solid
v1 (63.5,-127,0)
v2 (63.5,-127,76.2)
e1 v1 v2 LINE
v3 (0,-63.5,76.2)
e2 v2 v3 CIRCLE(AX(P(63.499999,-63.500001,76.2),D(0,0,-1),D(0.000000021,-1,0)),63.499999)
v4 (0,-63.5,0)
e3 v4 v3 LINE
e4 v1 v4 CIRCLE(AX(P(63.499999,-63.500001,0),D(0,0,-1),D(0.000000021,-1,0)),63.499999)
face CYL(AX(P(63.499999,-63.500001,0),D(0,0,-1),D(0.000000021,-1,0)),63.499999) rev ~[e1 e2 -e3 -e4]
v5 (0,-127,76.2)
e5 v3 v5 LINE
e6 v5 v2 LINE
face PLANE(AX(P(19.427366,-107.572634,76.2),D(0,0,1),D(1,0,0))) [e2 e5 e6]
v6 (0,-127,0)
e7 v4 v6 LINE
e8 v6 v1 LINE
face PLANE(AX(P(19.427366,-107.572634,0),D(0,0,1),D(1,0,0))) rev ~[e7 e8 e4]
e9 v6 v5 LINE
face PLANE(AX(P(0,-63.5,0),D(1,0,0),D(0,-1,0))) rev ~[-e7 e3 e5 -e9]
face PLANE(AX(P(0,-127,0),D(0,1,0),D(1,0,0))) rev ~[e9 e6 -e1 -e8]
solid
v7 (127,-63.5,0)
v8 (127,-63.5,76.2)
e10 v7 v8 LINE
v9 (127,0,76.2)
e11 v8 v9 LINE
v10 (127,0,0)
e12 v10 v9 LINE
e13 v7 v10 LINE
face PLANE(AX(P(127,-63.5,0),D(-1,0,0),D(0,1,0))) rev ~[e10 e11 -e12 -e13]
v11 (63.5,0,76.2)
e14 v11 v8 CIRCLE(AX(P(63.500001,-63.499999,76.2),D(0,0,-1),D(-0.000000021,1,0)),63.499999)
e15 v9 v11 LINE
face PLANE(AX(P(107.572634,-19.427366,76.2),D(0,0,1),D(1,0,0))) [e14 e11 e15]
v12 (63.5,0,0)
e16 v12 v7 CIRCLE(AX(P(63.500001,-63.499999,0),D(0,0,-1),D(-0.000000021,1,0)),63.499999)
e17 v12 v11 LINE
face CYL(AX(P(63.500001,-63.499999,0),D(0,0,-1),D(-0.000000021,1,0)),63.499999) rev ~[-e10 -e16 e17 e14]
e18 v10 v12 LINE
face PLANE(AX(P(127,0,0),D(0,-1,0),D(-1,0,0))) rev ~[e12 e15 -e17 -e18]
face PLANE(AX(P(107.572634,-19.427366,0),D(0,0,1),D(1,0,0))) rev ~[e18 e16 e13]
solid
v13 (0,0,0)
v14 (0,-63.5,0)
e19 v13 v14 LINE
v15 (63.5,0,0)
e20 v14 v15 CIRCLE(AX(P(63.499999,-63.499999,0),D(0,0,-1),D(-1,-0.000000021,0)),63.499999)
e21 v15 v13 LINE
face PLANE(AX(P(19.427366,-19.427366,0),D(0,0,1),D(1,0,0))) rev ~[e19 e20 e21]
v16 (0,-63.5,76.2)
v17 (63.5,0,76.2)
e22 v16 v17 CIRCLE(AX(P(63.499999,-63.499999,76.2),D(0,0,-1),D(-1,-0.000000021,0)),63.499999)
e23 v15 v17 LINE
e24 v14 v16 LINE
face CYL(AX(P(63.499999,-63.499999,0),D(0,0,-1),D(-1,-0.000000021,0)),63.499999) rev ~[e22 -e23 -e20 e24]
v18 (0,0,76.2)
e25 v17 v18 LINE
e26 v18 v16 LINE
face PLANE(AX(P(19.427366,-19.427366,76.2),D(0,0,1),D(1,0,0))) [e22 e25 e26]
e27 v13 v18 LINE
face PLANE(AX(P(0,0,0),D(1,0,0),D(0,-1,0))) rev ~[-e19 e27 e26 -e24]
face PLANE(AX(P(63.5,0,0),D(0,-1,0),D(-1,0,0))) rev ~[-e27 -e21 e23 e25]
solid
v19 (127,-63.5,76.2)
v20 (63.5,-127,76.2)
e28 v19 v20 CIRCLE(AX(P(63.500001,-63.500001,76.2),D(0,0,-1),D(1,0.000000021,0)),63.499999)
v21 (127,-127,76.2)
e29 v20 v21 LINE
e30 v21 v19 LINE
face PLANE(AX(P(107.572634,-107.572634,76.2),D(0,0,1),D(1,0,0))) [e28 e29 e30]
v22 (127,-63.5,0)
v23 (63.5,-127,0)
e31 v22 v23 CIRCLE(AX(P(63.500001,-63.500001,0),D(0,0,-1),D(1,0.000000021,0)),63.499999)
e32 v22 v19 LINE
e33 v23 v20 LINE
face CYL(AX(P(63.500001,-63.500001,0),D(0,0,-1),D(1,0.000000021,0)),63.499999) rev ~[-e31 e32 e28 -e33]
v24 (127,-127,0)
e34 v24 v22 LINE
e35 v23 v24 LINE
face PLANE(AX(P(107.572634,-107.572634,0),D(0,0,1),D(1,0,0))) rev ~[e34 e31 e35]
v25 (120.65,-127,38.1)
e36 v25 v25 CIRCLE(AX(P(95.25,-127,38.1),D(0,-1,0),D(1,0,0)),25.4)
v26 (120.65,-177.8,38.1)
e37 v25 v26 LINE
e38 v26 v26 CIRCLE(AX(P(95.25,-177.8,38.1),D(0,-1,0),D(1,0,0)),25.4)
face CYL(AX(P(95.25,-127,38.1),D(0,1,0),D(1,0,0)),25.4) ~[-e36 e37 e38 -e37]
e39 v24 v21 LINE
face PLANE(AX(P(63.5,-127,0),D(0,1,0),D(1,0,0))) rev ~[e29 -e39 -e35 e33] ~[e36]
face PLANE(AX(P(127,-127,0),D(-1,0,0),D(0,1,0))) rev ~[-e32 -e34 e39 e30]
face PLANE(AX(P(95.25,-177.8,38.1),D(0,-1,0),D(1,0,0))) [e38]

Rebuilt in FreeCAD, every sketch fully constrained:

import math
import FreeCAD as App
import Part
import Sketcher

V = App.Vector
Q = App.Units.Quantity

doc = App.newDocument("Part")
body = doc.addObject("PartDesign::Body", "Body")
body.AllowCompound = True

sketch1 = body.newObject("Sketcher::SketchObject", "Sketch")
sketch1.AttachmentSupport = (doc.getObject("XY_Plane"), [""])
sketch1.MapMode = "FlatFace"
sketch1.addGeometry([
    Part.LineSegment(V(64, 0, 0), V(0, 0, 0)),
    Part.LineSegment(V(0, 0, 0), V(0, -64, 0)),
    Part.ArcOfCircle(Part.Circle(V(63, -63, 0), V(0, 0, 1), 63), math.radians(90), math.radians(180)),
    Part.LineSegment(V(127, 0, 0), V(64, 0, 0)),
    Part.ArcOfCircle(Part.Circle(V(64, -63, 0), V(0, 0, 1), 63), math.radians(0), math.radians(90)),
    Part.LineSegment(V(127, -64, 0), V(127, 0, 0)),
    Part.ArcOfCircle(Part.Circle(V(63, -64, 0), V(0, 0, 1), 63), math.radians(180), math.radians(270)),
    Part.LineSegment(V(0, -64, 0), V(0, -127, 0)),
    Part.LineSegment(V(0, -127, 0), V(64, -127, 0)),
    Part.LineSegment(V(127, -127, 0), V(127, -64, 0)),
    Part.ArcOfCircle(Part.Circle(V(64, -64, 0), V(0, 0, 1), 63), math.radians(-90), math.radians(0)),
    Part.LineSegment(V(64, -127, 0), V(127, -127, 0)),
], False)
sketch1.addConstraint([
    Sketcher.Constraint("Coincident", 0, 2, 1, 1),
    Sketcher.Constraint("Tangent", 1, 2, 2, 2),
    Sketcher.Constraint("Tangent", 2, 1, 0, 1),
    Sketcher.Constraint("Tangent", 3, 2, 4, 2),
    Sketcher.Constraint("Tangent", 4, 1, 5, 1),
    Sketcher.Constraint("Coincident", 5, 2, 3, 1),
    Sketcher.Constraint("Tangent", 6, 1, 7, 1),
    Sketcher.Constraint("Coincident", 7, 2, 8, 1),
    Sketcher.Constraint("Tangent", 8, 2, 6, 2),
    Sketcher.Constraint("Tangent", 9, 2, 10, 2),
    Sketcher.Constraint("Tangent", 10, 1, 11, 1),
    Sketcher.Constraint("Coincident", 11, 2, 9, 1),
    Sketcher.Constraint("Horizontal", 0),
    Sketcher.Constraint("Vertical", 1),
    Sketcher.Constraint("Horizontal", 3),
    Sketcher.Constraint("Vertical", 5),
    Sketcher.Constraint("Vertical", 7),
    Sketcher.Constraint("Horizontal", 8),
    Sketcher.Constraint("Vertical", 9),
    Sketcher.Constraint("Horizontal", 11),
    Sketcher.Constraint("Coincident", 0, 2, -1, 1),
    Sketcher.Constraint("Coincident", 4, 3, 2, 3),
    Sketcher.Constraint("Coincident", 6, 3, 2, 3),
    Sketcher.Constraint("Coincident", 10, 3, 2, 3),
    Sketcher.Constraint("Equal", 2, 4),
    Sketcher.Constraint("Equal", 4, 6),
    Sketcher.Constraint("Equal", 6, 10),
    Sketcher.Constraint("Radius", 2, Q("2.4999999 in")),
])
pad1 = body.newObject("PartDesign::Pad", "Pad")
pad1.Profile = sketch1
pad1.Length = Q("3 in")

sketch2 = body.newObject("Sketcher::SketchObject", "Sketch001")
sketch2.AttachmentSupport = (doc.getObject("XZ_Plane"), [""])
sketch2.MapMode = "FlatFace"
sketch2.AttachmentOffset = App.Placement(V(0, 0, 5 * 25.4), App.Rotation())
sketch2.addGeometry(Part.Circle(V(95, 38, 0), V(0, 0, 1), 25), False)
sketch2.addConstraint([
    Sketcher.Constraint("Diameter", 0, Q("2 in")),
    Sketcher.Constraint("DistanceY", -1, 1, 0, 3, Q("1.5 in")),
    Sketcher.Constraint("DistanceX", -1, 1, 0, 3, Q("3.75 in")),
])
pad2 = body.newObject("PartDesign::Pad", "Pad001")
pad2.Profile = sketch2
pad2.Length = Q("2 in")

doc.recompute()
